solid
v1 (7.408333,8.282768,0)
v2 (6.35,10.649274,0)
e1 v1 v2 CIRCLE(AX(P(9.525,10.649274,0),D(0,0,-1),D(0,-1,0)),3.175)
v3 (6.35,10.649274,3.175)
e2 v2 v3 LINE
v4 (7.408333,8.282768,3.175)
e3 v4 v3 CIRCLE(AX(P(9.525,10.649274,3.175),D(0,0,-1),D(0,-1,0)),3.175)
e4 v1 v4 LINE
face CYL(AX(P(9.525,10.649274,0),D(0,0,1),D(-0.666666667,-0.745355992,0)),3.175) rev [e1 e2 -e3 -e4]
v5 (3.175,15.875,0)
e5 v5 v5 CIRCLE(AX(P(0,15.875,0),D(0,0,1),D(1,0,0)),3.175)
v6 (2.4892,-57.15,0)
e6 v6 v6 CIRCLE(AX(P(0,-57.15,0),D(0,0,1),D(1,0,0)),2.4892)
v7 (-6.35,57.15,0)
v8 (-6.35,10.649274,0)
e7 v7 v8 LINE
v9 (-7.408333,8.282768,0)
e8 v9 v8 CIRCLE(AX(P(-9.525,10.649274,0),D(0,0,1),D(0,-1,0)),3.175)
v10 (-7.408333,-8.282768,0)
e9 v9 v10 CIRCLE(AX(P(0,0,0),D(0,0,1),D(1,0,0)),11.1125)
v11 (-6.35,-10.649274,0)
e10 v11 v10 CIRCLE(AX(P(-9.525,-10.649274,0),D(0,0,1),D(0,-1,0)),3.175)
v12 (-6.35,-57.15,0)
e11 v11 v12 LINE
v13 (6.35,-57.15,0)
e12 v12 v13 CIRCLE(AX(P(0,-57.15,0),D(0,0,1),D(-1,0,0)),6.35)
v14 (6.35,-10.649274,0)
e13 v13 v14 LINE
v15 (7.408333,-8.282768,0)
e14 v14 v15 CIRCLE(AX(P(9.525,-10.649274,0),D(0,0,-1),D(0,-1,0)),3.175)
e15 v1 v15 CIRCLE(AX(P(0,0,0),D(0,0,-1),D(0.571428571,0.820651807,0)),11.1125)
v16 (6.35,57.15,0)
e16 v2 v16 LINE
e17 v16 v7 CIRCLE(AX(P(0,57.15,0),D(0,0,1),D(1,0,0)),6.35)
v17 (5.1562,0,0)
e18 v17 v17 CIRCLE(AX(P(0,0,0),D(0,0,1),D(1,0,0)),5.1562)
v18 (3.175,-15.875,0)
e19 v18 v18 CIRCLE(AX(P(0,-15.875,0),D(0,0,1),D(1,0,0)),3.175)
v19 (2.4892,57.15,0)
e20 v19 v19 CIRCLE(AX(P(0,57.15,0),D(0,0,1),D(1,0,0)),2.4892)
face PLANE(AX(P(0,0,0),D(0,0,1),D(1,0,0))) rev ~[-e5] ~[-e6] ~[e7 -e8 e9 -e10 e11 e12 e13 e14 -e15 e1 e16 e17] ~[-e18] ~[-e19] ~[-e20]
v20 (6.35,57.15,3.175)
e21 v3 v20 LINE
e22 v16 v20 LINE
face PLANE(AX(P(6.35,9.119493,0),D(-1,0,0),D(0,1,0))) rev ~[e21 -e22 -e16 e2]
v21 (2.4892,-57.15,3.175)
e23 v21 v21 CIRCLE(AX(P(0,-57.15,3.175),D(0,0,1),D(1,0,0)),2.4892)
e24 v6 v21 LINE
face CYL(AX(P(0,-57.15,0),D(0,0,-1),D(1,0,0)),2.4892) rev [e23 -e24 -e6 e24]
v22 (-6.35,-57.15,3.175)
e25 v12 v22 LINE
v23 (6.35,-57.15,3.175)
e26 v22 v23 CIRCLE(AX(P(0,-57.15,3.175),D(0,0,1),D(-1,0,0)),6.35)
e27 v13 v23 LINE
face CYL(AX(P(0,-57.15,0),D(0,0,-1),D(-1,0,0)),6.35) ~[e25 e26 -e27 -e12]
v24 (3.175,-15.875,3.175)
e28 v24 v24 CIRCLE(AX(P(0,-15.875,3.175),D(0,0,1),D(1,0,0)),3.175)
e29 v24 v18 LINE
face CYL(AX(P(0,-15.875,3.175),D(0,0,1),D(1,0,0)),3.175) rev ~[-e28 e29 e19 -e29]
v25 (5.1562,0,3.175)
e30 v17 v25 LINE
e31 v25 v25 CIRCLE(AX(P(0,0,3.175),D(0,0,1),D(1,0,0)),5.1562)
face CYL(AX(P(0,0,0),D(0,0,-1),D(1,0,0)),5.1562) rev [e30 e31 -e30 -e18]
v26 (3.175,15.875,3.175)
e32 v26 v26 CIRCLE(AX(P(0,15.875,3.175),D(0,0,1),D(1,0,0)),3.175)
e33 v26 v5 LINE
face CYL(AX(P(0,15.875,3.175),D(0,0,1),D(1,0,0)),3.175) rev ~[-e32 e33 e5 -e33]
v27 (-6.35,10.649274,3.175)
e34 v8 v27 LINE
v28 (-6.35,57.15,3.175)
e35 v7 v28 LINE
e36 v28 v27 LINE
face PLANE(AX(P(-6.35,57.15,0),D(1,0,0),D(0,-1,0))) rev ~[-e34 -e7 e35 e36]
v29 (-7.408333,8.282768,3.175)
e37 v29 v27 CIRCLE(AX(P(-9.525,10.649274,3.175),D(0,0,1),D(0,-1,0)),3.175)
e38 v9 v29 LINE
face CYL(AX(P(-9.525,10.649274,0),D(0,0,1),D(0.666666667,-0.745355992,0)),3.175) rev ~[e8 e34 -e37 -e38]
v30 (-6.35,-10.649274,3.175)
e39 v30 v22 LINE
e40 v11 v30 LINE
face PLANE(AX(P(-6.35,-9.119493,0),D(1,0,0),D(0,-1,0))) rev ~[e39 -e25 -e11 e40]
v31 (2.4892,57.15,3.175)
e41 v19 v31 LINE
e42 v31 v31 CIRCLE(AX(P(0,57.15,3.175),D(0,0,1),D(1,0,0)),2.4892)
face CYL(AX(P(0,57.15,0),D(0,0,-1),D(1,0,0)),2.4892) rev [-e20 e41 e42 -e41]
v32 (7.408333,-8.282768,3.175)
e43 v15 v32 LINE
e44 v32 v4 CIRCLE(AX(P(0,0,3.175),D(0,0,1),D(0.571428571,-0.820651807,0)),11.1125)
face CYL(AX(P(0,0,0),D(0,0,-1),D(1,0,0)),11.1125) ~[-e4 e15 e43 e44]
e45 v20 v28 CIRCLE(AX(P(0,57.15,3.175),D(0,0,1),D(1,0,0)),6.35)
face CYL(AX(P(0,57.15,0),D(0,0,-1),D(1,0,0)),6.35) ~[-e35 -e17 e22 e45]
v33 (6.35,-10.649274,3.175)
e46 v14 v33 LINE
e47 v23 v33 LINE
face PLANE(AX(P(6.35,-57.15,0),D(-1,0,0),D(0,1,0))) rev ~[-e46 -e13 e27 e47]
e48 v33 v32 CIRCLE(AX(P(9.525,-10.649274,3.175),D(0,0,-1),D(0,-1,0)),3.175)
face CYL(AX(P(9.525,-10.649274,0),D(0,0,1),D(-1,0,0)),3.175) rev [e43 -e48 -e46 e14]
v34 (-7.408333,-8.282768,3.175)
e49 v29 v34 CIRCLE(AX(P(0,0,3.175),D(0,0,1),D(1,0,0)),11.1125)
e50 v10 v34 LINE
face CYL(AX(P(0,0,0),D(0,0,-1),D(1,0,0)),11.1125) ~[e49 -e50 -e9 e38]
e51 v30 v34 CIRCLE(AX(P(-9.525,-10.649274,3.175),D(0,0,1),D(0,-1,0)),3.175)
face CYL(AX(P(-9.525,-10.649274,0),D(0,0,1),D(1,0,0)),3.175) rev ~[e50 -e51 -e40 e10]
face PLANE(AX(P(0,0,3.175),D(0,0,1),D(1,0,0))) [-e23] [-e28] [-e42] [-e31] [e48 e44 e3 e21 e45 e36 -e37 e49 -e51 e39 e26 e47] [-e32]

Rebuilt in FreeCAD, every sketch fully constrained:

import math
import FreeCAD as App
import Part
import Sketcher

V = App.Vector
Q = App.Units.Quantity


def edges_at(feature, points):
    """Names of the edges that pass closest to the given points."""
    edges = feature.Shape.Edges
    near = lambda p: min(range(len(edges)), key=lambda i: edges[i].distToShape(Part.Vertex(*p))[0])
    return sorted({f"Edge{near(p) + 1}" for p in points})

doc = App.newDocument("Part")
body = doc.addObject("PartDesign::Body", "Body")

# Sketch on XY plane
sketch1 = body.newObject("Sketcher::SketchObject", "Sketch")
sketch1.AttachmentSupport = (doc.getObject("XY_Plane"), [""])
sketch1.MapMode = "FlatFace"
sketch1.addGeometry([
    Part.ArcOfCircle(Part.Circle(V(0, -57.1, 0), V(0, 0, 1), 6.3), math.radians(180), math.radians(360)),  # 0
    Part.LineSegment(V(6.3, -57.1, 0), V(6.3, -9.1, 0)),  # 1
    Part.ArcOfCircle(Part.Circle(V(0, 0, 0), V(0, 0, 1), 11.1), math.radians(-55), math.radians(55)),  # 2
    Part.LineSegment(V(6.3, 9.1, 0), V(6.3, 57.1, 0)),  # 3
    Part.ArcOfCircle(Part.Circle(V(0, 57.1, 0), V(0, 0, 1), 6.3), math.radians(0), math.radians(180)),  # 4
    Part.LineSegment(V(-6.3, 57.1, 0), V(-6.3, 9.1, 0)),  # 5
    Part.ArcOfCircle(Part.Circle(V(0, 0, 0), V(0, 0, 1), 11.1), math.radians(125), math.radians(235)),  # 6
    Part.LineSegment(V(-6.3, -9.1, 0), V(-6.3, -57.1, 0)),  # 7
    Part.Circle(V(0, -57.1, 0), V(0, 0, 1), 2.5),  # 8
    Part.Circle(V(0, 0, 0), V(0, 0, 1), 5.2),  # 9
    Part.Circle(V(0, 57.1, 0), V(0, 0, 1), 2.5),  # 10
], False)
sketch1.addConstraint([
    Sketcher.Constraint("Tangent", 0, 2, 1, 1),
    Sketcher.Constraint("Coincident", 1, 2, 2, 1),
    Sketcher.Constraint("Coincident", 2, 2, 3, 1),
    Sketcher.Constraint("Tangent", 3, 2, 4, 1),
    Sketcher.Constraint("Tangent", 4, 2, 5, 1),
    Sketcher.Constraint("Coincident", 5, 2, 6, 1),
    Sketcher.Constraint("Coincident", 6, 2, 7, 1),
    Sketcher.Constraint("Tangent", 7, 2, 0, 1),
    Sketcher.Constraint("Vertical", 1),
    Sketcher.Constraint("Vertical", 3),
    Sketcher.Constraint("Vertical", 5),
    Sketcher.Constraint("Vertical", 7),
    Sketcher.Constraint("Coincident", 2, 3, -1, 1),
    Sketcher.Constraint("Coincident", 6, 3, -1, 1),
    Sketcher.Constraint("Coincident", 9, 3, -1, 1),
    Sketcher.Constraint("Coincident", 8, 3, 0, 3),
    Sketcher.Constraint("Coincident", 10, 3, 4, 3),
    Sketcher.Constraint("Equal", 0, 4),
    Sketcher.Constraint("Equal", 2, 6),
    Sketcher.Constraint("Equal", 8, 10),
    Sketcher.Constraint("Symmetric", 0, 3, 4, 3, -1, 1),
    Sketcher.Constraint("PointOnObject", 0, 3, -2),
    Sketcher.Constraint("Radius", 0, Q("0.25 in")),
    Sketcher.Constraint("Diameter", 8, Q("0.196 in")),
    Sketcher.Constraint("Diameter", 9, Q("0.406 in")),
    Sketcher.Constraint("Radius", 2, Q("0.4375 in")),
    Sketcher.Constraint("DistanceY", 0, 3, 4, 3, Q("4.5 in")),
])
pad1 = body.newObject("PartDesign::Pad", "Pad")
pad1.Profile = sketch1
pad1.Length = Q("0.125 in")

# Sketch on XY plane
sketch2 = body.newObject("Sketcher::SketchObject", "Sketch001")
sketch2.AttachmentSupport = (doc.getObject("XY_Plane"), [""])
sketch2.MapMode = "FlatFace"
sketch2.AttachmentOffset = App.Placement(V(0, 0, 0.125 * 25.4), App.Rotation())
sketch2.addGeometry([
    Part.Circle(V(0, 15.9, 0), V(0, 0, 1), 3.2),
    Part.Circle(V(0, -15.9, 0), V(0, 0, 1), 3.2),
], False)
sketch2.addConstraint([
    Sketcher.Constraint("Equal", 0, 1),
    Sketcher.Constraint("Symmetric", 0, 3, 1, 3, -1, 1),
    Sketcher.Constraint("PointOnObject", 0, 3, -2),
    Sketcher.Constraint("Diameter", 0, Q("0.25 in")),
    Sketcher.Constraint("DistanceY", 1, 3, 0, 3, Q("1.25 in")),
])
pocket1 = body.newObject("PartDesign::Pocket", "Pocket")
pocket1.Profile = sketch2
pocket1.Type = "ThroughAll"
doc.recompute()

fillet = body.newObject("PartDesign::Fillet", "Fillet")
fillet.Base = (pocket1, edges_at(pocket1, [
    (6.35, 9.12, 1.587),
    (6.35, -9.12, 1.587),
    (-6.35, -9.12, 1.587),
    (-6.35, 9.12, 1.587),
]))
fillet.Radius = Q("0.125 in")

doc.recompute()
